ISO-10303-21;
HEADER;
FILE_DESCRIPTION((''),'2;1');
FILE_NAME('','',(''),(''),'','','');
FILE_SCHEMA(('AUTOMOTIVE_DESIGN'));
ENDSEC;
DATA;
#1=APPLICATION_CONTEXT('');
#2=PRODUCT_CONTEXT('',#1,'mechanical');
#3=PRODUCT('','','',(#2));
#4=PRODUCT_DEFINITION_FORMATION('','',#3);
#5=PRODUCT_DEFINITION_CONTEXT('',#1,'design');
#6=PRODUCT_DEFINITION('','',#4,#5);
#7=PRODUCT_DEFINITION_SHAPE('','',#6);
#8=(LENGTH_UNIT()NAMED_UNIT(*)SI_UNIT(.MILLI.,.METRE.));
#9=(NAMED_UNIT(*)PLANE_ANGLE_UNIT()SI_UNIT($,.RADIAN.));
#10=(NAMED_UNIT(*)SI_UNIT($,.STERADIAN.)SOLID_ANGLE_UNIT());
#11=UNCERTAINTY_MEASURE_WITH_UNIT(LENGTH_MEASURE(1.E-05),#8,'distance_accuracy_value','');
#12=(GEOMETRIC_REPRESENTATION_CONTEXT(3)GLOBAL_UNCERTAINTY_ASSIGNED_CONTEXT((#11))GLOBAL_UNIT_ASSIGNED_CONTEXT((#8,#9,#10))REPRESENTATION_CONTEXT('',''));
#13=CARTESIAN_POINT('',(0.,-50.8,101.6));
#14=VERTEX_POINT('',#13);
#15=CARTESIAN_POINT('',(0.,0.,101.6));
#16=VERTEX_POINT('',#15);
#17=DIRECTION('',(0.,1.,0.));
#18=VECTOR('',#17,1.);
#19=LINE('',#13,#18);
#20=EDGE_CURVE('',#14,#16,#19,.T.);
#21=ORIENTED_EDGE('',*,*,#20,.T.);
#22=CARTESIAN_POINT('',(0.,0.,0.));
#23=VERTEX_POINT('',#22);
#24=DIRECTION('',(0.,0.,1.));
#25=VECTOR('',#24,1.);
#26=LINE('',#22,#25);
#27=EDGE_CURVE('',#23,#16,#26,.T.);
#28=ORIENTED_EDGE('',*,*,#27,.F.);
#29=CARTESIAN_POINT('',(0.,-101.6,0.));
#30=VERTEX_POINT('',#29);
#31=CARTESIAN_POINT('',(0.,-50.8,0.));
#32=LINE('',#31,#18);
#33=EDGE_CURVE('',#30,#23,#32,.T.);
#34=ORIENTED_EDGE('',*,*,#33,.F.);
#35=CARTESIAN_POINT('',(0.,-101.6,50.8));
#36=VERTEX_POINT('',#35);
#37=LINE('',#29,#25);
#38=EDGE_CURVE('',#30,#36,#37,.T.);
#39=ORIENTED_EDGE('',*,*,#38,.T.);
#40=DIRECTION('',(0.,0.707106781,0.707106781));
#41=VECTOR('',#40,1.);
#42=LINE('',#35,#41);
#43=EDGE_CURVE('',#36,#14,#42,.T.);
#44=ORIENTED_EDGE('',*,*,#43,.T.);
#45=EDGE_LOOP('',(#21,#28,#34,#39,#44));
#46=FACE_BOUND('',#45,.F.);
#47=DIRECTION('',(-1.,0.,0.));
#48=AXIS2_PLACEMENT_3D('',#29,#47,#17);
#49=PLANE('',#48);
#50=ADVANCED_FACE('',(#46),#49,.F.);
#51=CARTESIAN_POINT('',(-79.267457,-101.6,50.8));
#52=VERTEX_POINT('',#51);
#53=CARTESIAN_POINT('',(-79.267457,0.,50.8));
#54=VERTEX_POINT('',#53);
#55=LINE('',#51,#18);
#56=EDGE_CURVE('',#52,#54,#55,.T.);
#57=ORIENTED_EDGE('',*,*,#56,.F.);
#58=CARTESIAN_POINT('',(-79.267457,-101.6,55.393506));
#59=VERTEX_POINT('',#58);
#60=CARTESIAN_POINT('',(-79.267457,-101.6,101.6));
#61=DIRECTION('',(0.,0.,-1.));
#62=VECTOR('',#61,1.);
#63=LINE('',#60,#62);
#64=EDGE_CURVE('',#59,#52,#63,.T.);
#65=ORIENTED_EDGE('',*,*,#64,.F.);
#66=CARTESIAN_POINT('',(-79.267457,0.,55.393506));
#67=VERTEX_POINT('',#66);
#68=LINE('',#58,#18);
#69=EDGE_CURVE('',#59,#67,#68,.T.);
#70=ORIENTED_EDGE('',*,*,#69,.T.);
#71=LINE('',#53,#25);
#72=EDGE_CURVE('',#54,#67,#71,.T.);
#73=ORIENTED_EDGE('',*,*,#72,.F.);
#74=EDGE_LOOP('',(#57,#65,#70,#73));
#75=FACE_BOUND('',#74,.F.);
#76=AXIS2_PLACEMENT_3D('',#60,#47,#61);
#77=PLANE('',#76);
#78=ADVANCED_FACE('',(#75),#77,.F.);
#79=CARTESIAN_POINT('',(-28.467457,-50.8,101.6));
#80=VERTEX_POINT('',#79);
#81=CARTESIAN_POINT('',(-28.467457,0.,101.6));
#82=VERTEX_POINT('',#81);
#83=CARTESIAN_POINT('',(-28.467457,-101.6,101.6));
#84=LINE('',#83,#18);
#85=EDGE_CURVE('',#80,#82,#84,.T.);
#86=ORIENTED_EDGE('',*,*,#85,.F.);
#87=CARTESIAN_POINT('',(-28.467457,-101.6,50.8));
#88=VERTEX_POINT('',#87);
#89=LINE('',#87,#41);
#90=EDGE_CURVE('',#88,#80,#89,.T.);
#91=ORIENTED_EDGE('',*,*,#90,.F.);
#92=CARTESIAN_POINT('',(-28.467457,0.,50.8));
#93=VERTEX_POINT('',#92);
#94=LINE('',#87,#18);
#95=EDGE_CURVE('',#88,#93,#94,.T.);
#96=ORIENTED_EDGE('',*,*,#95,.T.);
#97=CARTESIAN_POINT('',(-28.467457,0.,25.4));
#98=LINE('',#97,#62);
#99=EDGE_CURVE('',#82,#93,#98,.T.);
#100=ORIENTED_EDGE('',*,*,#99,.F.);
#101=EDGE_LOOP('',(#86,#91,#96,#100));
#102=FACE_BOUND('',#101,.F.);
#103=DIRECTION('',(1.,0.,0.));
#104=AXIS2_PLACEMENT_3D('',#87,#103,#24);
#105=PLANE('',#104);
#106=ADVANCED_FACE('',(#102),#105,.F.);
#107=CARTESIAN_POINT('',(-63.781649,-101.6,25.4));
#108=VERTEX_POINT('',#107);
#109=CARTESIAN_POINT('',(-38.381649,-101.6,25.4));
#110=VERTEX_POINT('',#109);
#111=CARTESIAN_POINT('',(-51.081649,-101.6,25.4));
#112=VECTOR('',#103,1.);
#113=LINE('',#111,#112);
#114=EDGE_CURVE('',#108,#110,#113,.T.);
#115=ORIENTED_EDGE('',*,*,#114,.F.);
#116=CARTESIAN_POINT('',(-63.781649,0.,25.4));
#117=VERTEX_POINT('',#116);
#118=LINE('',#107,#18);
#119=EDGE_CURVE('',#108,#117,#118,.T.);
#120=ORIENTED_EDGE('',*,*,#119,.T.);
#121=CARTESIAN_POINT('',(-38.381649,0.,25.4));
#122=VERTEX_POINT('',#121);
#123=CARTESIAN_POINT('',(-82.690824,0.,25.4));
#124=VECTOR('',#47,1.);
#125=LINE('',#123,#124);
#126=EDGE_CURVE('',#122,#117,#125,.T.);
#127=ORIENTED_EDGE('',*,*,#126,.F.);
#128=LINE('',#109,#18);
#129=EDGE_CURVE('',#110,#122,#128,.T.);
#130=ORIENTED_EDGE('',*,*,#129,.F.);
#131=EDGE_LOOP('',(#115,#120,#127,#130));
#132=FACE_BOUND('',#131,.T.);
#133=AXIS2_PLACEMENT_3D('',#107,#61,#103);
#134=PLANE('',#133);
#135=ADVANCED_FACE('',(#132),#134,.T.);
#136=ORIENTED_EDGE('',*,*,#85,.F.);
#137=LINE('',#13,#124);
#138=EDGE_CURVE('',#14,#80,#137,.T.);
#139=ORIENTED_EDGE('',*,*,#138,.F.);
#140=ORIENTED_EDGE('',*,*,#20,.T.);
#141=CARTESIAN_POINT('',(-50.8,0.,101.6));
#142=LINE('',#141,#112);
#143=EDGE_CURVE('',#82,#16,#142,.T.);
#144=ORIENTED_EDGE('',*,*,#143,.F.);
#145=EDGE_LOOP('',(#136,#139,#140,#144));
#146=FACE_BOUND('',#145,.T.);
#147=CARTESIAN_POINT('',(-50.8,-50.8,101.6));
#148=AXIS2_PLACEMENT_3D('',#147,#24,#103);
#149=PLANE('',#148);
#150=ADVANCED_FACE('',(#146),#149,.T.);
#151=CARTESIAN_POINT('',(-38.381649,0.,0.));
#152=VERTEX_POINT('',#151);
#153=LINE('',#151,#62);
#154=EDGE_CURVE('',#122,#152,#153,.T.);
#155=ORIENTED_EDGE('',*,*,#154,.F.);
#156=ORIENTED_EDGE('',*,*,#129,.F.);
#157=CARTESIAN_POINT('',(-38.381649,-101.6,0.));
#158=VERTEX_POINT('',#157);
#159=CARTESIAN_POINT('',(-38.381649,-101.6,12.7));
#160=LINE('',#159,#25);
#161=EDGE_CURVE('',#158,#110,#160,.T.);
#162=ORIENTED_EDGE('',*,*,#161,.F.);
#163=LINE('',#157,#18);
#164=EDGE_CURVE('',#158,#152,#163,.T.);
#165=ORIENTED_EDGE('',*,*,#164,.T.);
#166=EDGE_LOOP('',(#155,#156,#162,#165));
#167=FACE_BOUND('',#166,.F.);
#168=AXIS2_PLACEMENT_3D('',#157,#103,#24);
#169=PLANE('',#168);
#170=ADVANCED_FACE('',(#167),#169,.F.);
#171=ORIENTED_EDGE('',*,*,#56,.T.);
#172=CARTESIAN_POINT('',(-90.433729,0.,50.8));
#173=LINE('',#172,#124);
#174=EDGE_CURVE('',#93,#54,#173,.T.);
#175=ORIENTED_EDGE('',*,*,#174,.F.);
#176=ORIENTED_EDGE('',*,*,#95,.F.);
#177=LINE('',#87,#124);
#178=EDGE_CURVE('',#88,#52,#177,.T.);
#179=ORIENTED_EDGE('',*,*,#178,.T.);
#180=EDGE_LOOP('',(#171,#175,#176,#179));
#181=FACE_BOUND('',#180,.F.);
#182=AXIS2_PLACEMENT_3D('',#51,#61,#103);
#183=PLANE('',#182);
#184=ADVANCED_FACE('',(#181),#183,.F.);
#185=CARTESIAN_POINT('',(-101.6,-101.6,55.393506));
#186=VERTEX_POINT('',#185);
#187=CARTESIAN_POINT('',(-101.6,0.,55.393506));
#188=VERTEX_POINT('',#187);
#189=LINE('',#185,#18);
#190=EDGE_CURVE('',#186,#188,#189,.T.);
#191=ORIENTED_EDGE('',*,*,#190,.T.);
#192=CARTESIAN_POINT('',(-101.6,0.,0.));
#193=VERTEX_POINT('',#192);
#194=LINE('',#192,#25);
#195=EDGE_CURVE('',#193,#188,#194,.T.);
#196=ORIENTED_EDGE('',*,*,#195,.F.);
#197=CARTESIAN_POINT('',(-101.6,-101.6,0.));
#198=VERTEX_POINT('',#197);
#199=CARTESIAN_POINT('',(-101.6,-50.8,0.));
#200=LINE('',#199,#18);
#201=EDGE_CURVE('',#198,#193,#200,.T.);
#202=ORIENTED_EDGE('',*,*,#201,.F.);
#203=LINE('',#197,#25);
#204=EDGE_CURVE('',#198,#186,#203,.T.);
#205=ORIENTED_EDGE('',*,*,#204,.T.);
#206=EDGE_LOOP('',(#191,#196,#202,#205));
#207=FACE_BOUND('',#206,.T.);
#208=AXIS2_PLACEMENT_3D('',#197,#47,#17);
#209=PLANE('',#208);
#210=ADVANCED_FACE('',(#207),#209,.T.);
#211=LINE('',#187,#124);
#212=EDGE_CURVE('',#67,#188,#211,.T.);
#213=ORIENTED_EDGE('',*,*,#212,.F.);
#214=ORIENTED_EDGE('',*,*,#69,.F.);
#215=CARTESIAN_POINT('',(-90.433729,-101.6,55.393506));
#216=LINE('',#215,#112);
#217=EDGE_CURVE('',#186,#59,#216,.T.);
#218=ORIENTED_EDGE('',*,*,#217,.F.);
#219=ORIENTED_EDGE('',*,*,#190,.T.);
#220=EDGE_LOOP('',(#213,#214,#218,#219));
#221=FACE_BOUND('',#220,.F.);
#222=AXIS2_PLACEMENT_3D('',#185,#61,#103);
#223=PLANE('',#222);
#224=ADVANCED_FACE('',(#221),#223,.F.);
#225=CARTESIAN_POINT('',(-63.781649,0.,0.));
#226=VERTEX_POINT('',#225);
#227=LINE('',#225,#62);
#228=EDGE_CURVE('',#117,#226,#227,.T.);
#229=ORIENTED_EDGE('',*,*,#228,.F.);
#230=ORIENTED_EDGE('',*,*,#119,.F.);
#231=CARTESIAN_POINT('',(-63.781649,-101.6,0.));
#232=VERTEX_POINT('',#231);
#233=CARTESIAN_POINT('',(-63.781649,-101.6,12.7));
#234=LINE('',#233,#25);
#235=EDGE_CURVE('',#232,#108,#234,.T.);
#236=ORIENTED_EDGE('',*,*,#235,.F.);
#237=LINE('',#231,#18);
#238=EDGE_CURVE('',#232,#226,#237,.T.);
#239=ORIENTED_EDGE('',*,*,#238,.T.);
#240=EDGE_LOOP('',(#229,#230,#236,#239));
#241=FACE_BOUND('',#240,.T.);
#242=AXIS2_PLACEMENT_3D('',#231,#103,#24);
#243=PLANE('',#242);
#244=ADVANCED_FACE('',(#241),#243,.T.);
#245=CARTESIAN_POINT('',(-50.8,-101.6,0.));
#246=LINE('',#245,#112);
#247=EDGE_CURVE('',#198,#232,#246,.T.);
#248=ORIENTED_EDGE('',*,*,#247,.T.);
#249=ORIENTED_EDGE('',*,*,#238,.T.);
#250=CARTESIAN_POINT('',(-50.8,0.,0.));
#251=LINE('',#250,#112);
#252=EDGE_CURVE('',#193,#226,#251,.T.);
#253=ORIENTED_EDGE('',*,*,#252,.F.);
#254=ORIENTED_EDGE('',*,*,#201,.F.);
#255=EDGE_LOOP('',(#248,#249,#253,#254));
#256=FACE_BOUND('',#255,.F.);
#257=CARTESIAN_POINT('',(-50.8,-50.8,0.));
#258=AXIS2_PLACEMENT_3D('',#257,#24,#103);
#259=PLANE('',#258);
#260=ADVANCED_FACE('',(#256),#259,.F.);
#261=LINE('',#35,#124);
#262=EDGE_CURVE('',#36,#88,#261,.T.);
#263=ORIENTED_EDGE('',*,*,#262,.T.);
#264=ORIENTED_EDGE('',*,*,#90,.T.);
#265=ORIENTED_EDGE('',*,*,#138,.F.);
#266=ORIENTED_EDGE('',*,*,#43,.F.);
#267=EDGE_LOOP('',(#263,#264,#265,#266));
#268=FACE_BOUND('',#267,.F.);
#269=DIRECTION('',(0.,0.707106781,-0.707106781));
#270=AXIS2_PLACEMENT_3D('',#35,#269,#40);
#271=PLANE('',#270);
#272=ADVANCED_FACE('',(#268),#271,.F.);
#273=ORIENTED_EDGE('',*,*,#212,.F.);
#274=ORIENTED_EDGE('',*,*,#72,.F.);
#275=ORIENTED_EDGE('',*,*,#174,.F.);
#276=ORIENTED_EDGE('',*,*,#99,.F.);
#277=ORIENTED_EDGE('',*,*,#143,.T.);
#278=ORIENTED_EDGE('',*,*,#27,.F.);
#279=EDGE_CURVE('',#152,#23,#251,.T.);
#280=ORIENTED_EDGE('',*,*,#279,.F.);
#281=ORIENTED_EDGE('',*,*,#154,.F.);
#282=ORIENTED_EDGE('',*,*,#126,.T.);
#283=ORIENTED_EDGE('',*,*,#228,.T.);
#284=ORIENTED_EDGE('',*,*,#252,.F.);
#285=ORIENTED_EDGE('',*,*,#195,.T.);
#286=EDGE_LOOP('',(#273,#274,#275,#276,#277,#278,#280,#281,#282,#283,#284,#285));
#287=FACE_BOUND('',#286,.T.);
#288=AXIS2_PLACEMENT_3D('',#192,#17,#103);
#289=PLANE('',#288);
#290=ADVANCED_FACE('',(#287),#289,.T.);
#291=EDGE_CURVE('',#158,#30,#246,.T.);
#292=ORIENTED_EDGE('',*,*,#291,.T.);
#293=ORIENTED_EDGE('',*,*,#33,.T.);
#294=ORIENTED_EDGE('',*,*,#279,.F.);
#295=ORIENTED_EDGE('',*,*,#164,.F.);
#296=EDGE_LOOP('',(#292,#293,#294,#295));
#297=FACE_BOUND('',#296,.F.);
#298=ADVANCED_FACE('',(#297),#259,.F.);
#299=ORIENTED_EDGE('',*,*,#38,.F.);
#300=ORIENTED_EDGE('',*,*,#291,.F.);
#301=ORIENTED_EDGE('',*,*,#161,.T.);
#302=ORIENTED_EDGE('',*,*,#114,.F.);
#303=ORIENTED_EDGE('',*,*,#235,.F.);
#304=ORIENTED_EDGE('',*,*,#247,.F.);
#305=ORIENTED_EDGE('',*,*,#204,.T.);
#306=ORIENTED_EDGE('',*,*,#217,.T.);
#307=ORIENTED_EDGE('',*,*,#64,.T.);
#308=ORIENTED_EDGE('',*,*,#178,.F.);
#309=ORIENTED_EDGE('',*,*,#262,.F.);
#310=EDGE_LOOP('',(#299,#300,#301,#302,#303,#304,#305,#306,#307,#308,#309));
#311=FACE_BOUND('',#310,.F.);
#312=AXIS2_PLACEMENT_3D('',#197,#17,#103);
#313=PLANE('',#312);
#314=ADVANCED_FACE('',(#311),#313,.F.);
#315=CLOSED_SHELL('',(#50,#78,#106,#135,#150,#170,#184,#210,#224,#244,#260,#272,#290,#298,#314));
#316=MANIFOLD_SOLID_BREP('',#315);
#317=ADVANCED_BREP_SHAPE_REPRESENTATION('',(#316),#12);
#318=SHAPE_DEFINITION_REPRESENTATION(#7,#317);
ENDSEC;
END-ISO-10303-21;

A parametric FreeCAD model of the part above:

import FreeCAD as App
import Part
import Sketcher

V = App.Vector
Q = App.Units.Quantity


def add_polygon(sketch, points):
    """Adds a closed chain of lines whose ends are joined by coincident constraints."""
    first, n = sketch.GeometryCount, len(points)
    for a, b in zip(points, points[1:] + points[:1]):
        sketch.addGeometry(Part.LineSegment(App.Vector(*a, 0), App.Vector(*b, 0)), False)
    for i in range(n):
        sketch.addConstraint(Sketcher.Constraint("Coincident", first + i, 2, first + (i + 1) % n, 1))

doc = App.newDocument("Part")
body = doc.addObject("PartDesign::Body", "Body")

# Sketch on XY plane
sketch1 = doc.addObject("Sketcher::SketchObject", "Sketch")
body.addObject(sketch1)
sketch1.AttachmentSupport = (doc.XY_Plane, [""])
sketch1.MapMode = "FlatFace"
add_polygon(sketch1, [(-102, 0), (-102, -102), (0, -102), (0, 0)])  # lines 0-3
sketch1.addConstraint(Sketcher.Constraint("Vertical", 0))
sketch1.addConstraint(Sketcher.Constraint("Horizontal", 1))
sketch1.addConstraint(Sketcher.Constraint("Vertical", 2))
sketch1.addConstraint(Sketcher.Constraint("Horizontal", 3))
sketch1.addConstraint(Sketcher.Constraint("Coincident", 2, 2, -1, 1))
sketch1.addConstraint(Sketcher.Constraint("Equal", 3, 0))
sketch1.addConstraint(Sketcher.Constraint("DistanceX", 1, 1, 1, 2, Q("4 in")))
pad1 = doc.addObject("PartDesign::Pad", "Pad")
body.addObject(pad1)
pad1.Profile = sketch1
pad1.Length = Q("4 in")

# Sketch on XZ plane
sketch2 = doc.addObject("Sketcher::SketchObject", "Sketch001")
body.addObject(sketch2)
sketch2.AttachmentSupport = (doc.XZ_Plane, [""])
sketch2.MapMode = "FlatFace"
sketch2.AttachmentOffset = App.Placement(V(0, 0, 4 * 25.4), App.Rotation())
add_polygon(sketch2, [(-64, 25), (-64, 0), (-38, 0), (-38, 25)])  # lines 0-3
sketch2.addConstraint(Sketcher.Constraint("Vertical", 0))
sketch2.addConstraint(Sketcher.Constraint("Horizontal", 1))
sketch2.addConstraint(Sketcher.Constraint("Vertical", 2))
sketch2.addConstraint(Sketcher.Constraint("Horizontal", 3))
sketch2.addConstraint(Sketcher.Constraint("PointOnObject", 0, 2, -1))
sketch2.addConstraint(Sketcher.Constraint("Equal", 3, 0))
sketch2.addConstraint(Sketcher.Constraint("DistanceX", 1, 1, 1, 2, Q("1 in")))
sketch2.addConstraint(Sketcher.Constraint("DistanceX", 0, 2, -1, 1, Q("63.781649 mm")))
pocket1 = doc.addObject("PartDesign::Pocket", "Pocket")
body.addObject(pocket1)
pocket1.Profile = sketch2
pocket1.Length = Q("9.17 in")

# Sketch on XZ plane
sketch3 = doc.addObject("Sketcher::SketchObject", "Sketch002")
body.addObject(sketch3)
sketch3.AttachmentSupport = (doc.XZ_Plane, [""])
sketch3.MapMode = "FlatFace"
sketch3.AttachmentOffset = App.Placement(V(0, 0, 4 * 25.4), App.Rotation())
add_polygon(sketch3, [(-102, 102), (-102, 55), (-79, 55), (-79, 102)])  # lines 0-3
sketch3.addConstraint(Sketcher.Constraint("Vertical", 0))
sketch3.addConstraint(Sketcher.Constraint("Horizontal", 1))
sketch3.addConstraint(Sketcher.Constraint("Vertical", 2))
sketch3.addConstraint(Sketcher.Constraint("Horizontal", 3))
sketch3.addConstraint(Sketcher.Constraint("DistanceX", 0, 2, -1, 1, Q("4 in")))
sketch3.addConstraint(Sketcher.Constraint("DistanceY", -1, 1, 2, 2, Q("4 in")))
sketch3.addConstraint(Sketcher.Constraint("DistanceX", 1, 1, 1, 2, Q("22.332543 mm")))
sketch3.addConstraint(Sketcher.Constraint("DistanceY", 0, 2, 0, 1, Q("46.206494 mm")))
pocket2 = doc.addObject("PartDesign::Pocket", "Pocket001")
body.addObject(pocket2)
pocket2.Profile = sketch3
pocket2.Length = Q("4.56 in")

# Sketch on XZ plane
sketch4 = doc.addObject("Sketcher::SketchObject", "Sketch003")
body.addObject(sketch4)
sketch4.AttachmentSupport = (doc.XZ_Plane, [""])
sketch4.MapMode = "FlatFace"
sketch4.AttachmentOffset = App.Placement(V(0, 0, 4 * 25.4), App.Rotation())
add_polygon(sketch4, [(-28, 102), (-79, 102), (-79, 51), (-28, 51)])  # lines 0-3
sketch4.addConstraint(Sketcher.Constraint("Horizontal", 0))
sketch4.addConstraint(Sketcher.Constraint("Vertical", 1))
sketch4.addConstraint(Sketcher.Constraint("Horizontal", 2))
sketch4.addConstraint(Sketcher.Constraint("Vertical", 3))
sketch4.addConstraint(Sketcher.Constraint("Equal", 2, 1))
sketch4.addConstraint(Sketcher.Constraint("DistanceX", 0, 2, 0, 1, Q("2 in")))
sketch4.addConstraint(Sketcher.Constraint("DistanceY", -1, 1, 0, 2, Q("4 in")))
sketch4.addConstraint(Sketcher.Constraint("DistanceX", 0, 2, -1, 1, Q("79.267457 mm")))
pocket3 = doc.addObject("PartDesign::Pocket", "Pocket002")
body.addObject(pocket3)
pocket3.Profile = sketch4
pocket3.Length = Q("6.1 in")

# Sketch on YZ plane
sketch5 = doc.addObject("Sketcher::SketchObject", "Sketch004")
body.addObject(sketch5)
sketch5.AttachmentSupport = (doc.YZ_Plane, [""])
sketch5.MapMode = "FlatFace"
add_polygon(sketch5, [(-102, 102), (-102, 51), (-51, 102)])  # lines 0-2
sketch5.addConstraint(Sketcher.Constraint("Vertical", 0))
sketch5.addConstraint(Sketcher.Constraint("Horizontal", 2))
sketch5.addConstraint(Sketcher.Constraint("Equal", 2, 0))
sketch5.addConstraint(Sketcher.Constraint("DistanceX", 2, 2, 2, 1, Q("2 in")))
sketch5.addConstraint(Sketcher.Constraint("DistanceX", 0, 2, -1, 1, Q("4 in")))
sketch5.addConstraint(Sketcher.Constraint("DistanceY", -1, 1, 0, 2, Q("2 in")))
pocket4 = doc.addObject("PartDesign::Pocket", "Pocket003")
body.addObject(pocket4)
pocket4.Profile = sketch5
pocket4.Length = Q("2.14 in")

doc.recompute()
